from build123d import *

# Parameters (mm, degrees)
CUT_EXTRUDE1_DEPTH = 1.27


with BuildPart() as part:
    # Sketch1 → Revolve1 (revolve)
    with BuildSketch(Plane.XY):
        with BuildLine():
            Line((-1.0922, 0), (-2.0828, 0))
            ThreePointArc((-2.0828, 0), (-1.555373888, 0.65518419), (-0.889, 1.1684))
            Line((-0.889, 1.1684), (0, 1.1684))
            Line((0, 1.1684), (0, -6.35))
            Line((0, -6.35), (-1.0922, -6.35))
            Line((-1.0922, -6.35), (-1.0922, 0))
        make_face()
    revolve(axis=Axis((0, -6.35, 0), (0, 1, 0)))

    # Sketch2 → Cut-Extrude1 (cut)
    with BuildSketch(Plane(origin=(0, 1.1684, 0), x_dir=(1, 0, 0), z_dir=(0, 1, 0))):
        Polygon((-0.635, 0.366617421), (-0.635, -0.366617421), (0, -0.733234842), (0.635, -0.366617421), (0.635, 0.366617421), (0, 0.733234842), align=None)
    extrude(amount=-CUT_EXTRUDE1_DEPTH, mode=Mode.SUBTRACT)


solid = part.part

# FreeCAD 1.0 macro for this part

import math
import FreeCAD as App
import Part
import Sketcher
from FreeCAD import Vector
Q = App.Units.Quantity

doc = App.newDocument("Part")
params = doc.addObject("Spreadsheet::Sheet", "Params")
for row, (alias, value) in enumerate([
    ("sketch1_height", "0.25 in"),
    ("sketch1_width", "0.039 in"),
    ("sketch1_width2", "0.043 in"),
    ("sketch1_width3", "0.035 in"),
    ("sketch1_height2", "0.296 in"),
    ("revolution_angle", "360 deg"),
    ("pocket1_length", "0.05 in"),
], start=1):
    params.set(f"A{row}", alias)
    params.set(f"B{row}", "=" + value)
    params.setAlias(f"B{row}", alias)

body = doc.addObject("PartDesign::Body", "Body")

# Sketch on XY plane
sketch1 = body.newObject("Sketcher::SketchObject", "Sketch")
sketch1.AttachmentSupport = (doc.getObject("XY_Plane"), [""])
sketch1.MapMode = "FlatFace"
sketch1.addGeometry([
    Part.LineSegment(Vector(-2.0828, 0, 0), Vector(-1.0922, 0, 0)),  # 0
    Part.LineSegment(Vector(-1.0922, 0, 0), Vector(-1.0922, -6.35, 0)),  # 1
    Part.LineSegment(Vector(-1.0922, -6.35, 0), Vector(0, -6.35, 0)),  # 2
    Part.LineSegment(Vector(0, -6.35, 0), Vector(0, 1.1684, 0)),  # 3
    Part.LineSegment(Vector(0, 1.1684, 0), Vector(-0.889, 1.1684, 0)),  # 4
    Part.ArcOfCircle(Part.Circle(Vector(0.935607, -1.889949, 0), Vector(0, 0, 1), 3.561276), math.radians(120.820251), math.radians(147.947629)),  # 5
], False)
sketch1.addConstraint([
    Sketcher.Constraint("Coincident", 0, 2, 1, 1),
    Sketcher.Constraint("Coincident", 1, 2, 2, 1),
    Sketcher.Constraint("Coincident", 2, 2, 3, 1),
    Sketcher.Constraint("Coincident", 3, 2, 4, 1),
    Sketcher.Constraint("Coincident", 4, 2, 5, 1),
    Sketcher.Constraint("Coincident", 5, 2, 0, 1),
    Sketcher.Constraint("Horizontal", 0),
    Sketcher.Constraint("Vertical", 1),
    Sketcher.Constraint("Horizontal", 2),
    Sketcher.Constraint("Vertical", 3),
    Sketcher.Constraint("Horizontal", 4),
    Sketcher.Constraint("PointOnObject", 0, 2, -1),
    Sketcher.Constraint("PointOnObject", 2, 2, -2),
    Sketcher.Constraint("DistanceY", 1, 2, 1, 1, Q("0.25 in")),
    Sketcher.Constraint("DistanceX", 0, 1, 0, 2, Q("0.039 in")),
    Sketcher.Constraint("DistanceX", 2, 1, 2, 2, Q("0.043 in")),
    Sketcher.Constraint("DistanceX", 4, 2, 4, 1, Q("0.035 in")),
    Sketcher.Constraint("DistanceY", 3, 1, 3, 2, Q("0.296 in")),
    Sketcher.Constraint("Radius", 5, 3.561276),
])
sketch1.setExpression("Constraints[13]", "Params.sketch1_height")
sketch1.setExpression("Constraints[14]", "Params.sketch1_width")
sketch1.setExpression("Constraints[15]", "Params.sketch1_width2")
sketch1.setExpression("Constraints[16]", "Params.sketch1_width3")
sketch1.setExpression("Constraints[17]", "Params.sketch1_height2")
revolution = body.newObject("PartDesign::Revolution", "Revolution")
revolution.Profile = sketch1
revolution.ReferenceAxis = (sketch1, ["V_Axis"])
revolution.setExpression("Angle", "Params.revolution_angle")

# Sketch on XZ plane
sketch2 = body.newObject("Sketcher::SketchObject", "Sketch001")
sketch2.AttachmentSupport = (doc.getObject("XZ_Plane"), [""])
sketch2.MapMode = "FlatFace"
sketch2.AttachmentOffset = App.Placement(Vector(0, 0, -0.046 * 25.4), App.Rotation())
sketch2.addGeometry([
    Part.LineSegment(Vector(-0.635, -0.366617, 0), Vector(-0.635, 0.366617, 0)),  # 0
    Part.LineSegment(Vector(-0.635, 0.366617, 0), Vector(0, 0.733235, 0)),  # 1
    Part.LineSegment(Vector(0, 0.733235, 0), Vector(0.635, 0.366617, 0)),  # 2
    Part.LineSegment(Vector(0.635, 0.366617, 0), Vector(0.635, -0.366617, 0)),  # 3
    Part.LineSegment(Vector(0.635, -0.366617, 0), Vector(0, -0.733235, 0)),  # 4
    Part.LineSegment(Vector(0, -0.733235, 0), Vector(-0.635, -0.366617, 0)),  # 5
], False)
sketch2.addConstraint([
    Sketcher.Constraint("Coincident", 0, 2, 1, 1),
    Sketcher.Constraint("Coincident", 1, 2, 2, 1),
    Sketcher.Constraint("Coincident", 2, 2, 3, 1),
    Sketcher.Constraint("Coincident", 3, 2, 4, 1),
    Sketcher.Constraint("Coincident", 4, 2, 5, 1),
    Sketcher.Constraint("Coincident", 5, 2, 0, 1),
    Sketcher.Constraint("Vertical", 0),
    Sketcher.Constraint("Vertical", 3),
    Sketcher.Constraint("Symmetric", 0, 2, 3, 2, -1, 1),
    Sketcher.Constraint("Symmetric", 1, 2, 4, 2, -1, 1),
    Sketcher.Constraint("PointOnObject", 1, 2, -2),
    Sketcher.Constraint("Parallel", 2, 5),
    Sketcher.Constraint("Horizontal", 0, 2, 2, 2),
    Sketcher.Constraint("Angle", 1, Q("30 deg")),
    Sketcher.Constraint("DistanceX", 0, 2, 2, 2, Q("0.05 in")),
    Sketcher.Constraint("DistanceY", 0, 1, 0, 2, 0.733235),
])
pocket1 = body.newObject("PartDesign::Pocket", "Pocket")
pocket1.Profile = sketch2
pocket1.setExpression("Length", "Params.pocket1_length")
pocket1.Reversed = True

doc.recompute()
